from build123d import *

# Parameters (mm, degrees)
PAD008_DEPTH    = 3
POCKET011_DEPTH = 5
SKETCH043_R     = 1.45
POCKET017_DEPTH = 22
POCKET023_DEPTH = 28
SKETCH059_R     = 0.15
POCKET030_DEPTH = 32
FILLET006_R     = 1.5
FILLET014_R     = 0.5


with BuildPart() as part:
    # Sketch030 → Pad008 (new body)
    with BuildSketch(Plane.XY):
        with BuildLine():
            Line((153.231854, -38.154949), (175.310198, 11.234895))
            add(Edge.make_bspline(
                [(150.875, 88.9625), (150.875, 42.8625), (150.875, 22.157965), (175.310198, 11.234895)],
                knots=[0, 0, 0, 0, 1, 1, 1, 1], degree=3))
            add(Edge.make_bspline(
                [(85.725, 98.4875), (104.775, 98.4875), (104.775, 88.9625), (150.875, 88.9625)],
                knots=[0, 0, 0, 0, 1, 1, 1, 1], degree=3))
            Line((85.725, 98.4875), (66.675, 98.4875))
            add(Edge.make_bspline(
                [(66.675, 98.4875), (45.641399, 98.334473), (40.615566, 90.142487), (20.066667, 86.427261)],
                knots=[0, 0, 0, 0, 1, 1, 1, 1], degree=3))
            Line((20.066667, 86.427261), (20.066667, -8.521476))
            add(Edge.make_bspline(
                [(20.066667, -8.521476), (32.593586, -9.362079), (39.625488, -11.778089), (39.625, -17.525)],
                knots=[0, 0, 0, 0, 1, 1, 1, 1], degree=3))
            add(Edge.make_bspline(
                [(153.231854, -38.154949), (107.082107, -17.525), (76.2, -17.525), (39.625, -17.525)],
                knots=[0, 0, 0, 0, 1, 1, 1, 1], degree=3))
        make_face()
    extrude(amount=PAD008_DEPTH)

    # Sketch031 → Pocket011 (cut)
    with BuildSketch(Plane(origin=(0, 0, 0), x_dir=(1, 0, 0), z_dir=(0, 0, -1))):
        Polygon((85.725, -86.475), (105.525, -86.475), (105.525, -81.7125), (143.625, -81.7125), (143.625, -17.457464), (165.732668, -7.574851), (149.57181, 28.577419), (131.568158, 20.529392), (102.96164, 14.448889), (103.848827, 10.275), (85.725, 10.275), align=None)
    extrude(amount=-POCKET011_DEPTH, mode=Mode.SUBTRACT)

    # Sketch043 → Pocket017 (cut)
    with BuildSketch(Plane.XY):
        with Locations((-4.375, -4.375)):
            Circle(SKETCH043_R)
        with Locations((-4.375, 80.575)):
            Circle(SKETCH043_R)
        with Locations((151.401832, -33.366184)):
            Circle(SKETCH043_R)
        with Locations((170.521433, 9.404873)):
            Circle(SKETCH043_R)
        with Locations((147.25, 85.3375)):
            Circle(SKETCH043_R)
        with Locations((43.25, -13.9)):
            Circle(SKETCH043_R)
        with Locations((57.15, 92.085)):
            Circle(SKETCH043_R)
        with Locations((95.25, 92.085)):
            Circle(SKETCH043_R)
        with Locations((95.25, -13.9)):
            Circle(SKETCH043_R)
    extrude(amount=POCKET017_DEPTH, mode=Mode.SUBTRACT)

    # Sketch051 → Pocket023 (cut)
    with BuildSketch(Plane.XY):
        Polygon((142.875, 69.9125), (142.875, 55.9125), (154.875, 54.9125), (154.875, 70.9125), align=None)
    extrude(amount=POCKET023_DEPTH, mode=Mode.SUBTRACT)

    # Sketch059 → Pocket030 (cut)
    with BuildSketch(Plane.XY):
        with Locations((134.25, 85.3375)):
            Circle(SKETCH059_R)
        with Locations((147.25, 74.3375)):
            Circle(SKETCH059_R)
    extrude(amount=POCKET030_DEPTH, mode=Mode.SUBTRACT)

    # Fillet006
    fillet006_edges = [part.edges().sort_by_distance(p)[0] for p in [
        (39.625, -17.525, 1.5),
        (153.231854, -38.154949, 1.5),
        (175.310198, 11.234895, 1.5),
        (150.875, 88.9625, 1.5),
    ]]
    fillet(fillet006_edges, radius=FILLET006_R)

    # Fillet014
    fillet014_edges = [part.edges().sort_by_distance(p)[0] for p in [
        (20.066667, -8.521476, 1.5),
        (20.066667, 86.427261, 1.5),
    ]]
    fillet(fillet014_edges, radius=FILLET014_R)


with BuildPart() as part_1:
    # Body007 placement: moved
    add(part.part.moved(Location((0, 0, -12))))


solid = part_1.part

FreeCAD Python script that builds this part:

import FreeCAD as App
import Part
import Sketcher

V = App.Vector
Q = App.Units.Quantity


def edges_at(feature, points):
    """Names of the edges that pass closest to the given points."""
    edges = feature.Shape.Edges
    near = lambda p: min(range(len(edges)), key=lambda i: edges[i].distToShape(Part.Vertex(*p))[0])
    return sorted({f"Edge{near(p) + 1}" for p in points})


def add_polygon(sketch, points):
    """Adds a closed chain of lines whose ends are joined by coincident constraints."""
    first, n = sketch.GeometryCount, len(points)
    for a, b in zip(points, points[1:] + points[:1]):
        sketch.addGeometry(Part.LineSegment(App.Vector(*a, 0), App.Vector(*b, 0)), False)
    for i in range(n):
        sketch.addConstraint(Sketcher.Constraint("Coincident", first + i, 2, first + (i + 1) % n, 1))

doc = App.newDocument("Part")
body = doc.addObject("PartDesign::Body", "Body")

# Sketch on XY plane
sketch1 = body.newObject("Sketcher::SketchObject", "Sketch")
sketch1.AttachmentSupport = (doc.getObject("XY_Plane"), [""])
sketch1.MapMode = "FlatFace"
sketch1.addGeometry([
    Part.LineSegment(V(153.231854, -38.154949, 0), V(175.310198, 11.234895, 0)),  # 0
    Part.BSplineCurve([V(150.875, 88.9625, 0), V(150.875, 42.8625, 0), V(150.875, 22.157965, 0), V(175.310198, 11.234895, 0)], [4, 4], [0, 1], False, 3, [1, 1, 1, 1], False),  # 1
    Part.BSplineCurve([V(85.725, 98.4875, 0), V(104.775, 98.4875, 0), V(104.775, 88.9625, 0), V(150.875, 88.9625, 0)], [4, 4], [0, 1], False, 3, [1, 1, 1, 1], False),  # 2
    Part.LineSegment(V(85.725, 98.4875, 0), V(66.675, 98.4875, 0)),  # 3
    Part.BSplineCurve([V(66.675, 98.4875, 0), V(45.641399, 98.334473, 0), V(40.615566, 90.142487, 0), V(20.066667, 86.427261, 0)], [4, 4], [0, 1], False, 3, [1, 1, 1, 1], False),  # 4
    Part.LineSegment(V(20.066667, 86.427261, 0), V(20.066667, -8.521476, 0)),  # 5
    Part.BSplineCurve([V(20.066667, -8.521476, 0), V(32.593586, -9.362079, 0), V(39.625488, -11.778089, 0), V(39.625, -17.525, 0)], [4, 4], [0, 1], False, 3, [1, 1, 1, 1], False),  # 6
    Part.BSplineCurve([V(153.231854, -38.154949, 0), V(107.082107, -17.525, 0), V(76.2, -17.525, 0), V(39.625, -17.525, 0)], [4, 4], [0, 1], False, 3, [1, 1, 1, 1], False),  # 7
], False)
sketch1.addConstraint([
    Sketcher.Constraint("Block", 1),
    Sketcher.Constraint("Block", 2),
    Sketcher.Constraint("Block", 4),
    Sketcher.Constraint("Block", 6),
    Sketcher.Constraint("Block", 7),
    Sketcher.Constraint("Coincident", 0, 2, 1, 2),
    Sketcher.Constraint("Coincident", 2, 1, 3, 1),
    Sketcher.Constraint("Coincident", 3, 2, 4, 1),
    Sketcher.Constraint("Coincident", 4, 2, 5, 1),
    Sketcher.Constraint("Coincident", 5, 2, 6, 1),
    Sketcher.Constraint("Coincident", 7, 1, 0, 1),
])
pad1 = body.newObject("PartDesign::Pad", "Pad")
pad1.Profile = sketch1
pad1.Length = 3

# Sketch on XY plane
sketch2 = body.newObject("Sketcher::SketchObject", "Sketch001")
sketch2.AttachmentSupport = (doc.getObject("XY_Plane"), [""])
sketch2.MapMode = "FlatFace"
add_polygon(sketch2, [(85.725, 86.475), (105.525, 86.475), (105.525, 81.7125), (143.625, 81.7125), (143.625, 17.457464), (165.732668, 7.574851), (149.57181, -28.577419), (131.568158, -20.529392), (102.96164, -14.448889), (103.848827, -10.275), (85.725, -10.275)])  # lines 0-10
sketch2.addConstraint([
    Sketcher.Constraint("Horizontal", 0),
    Sketcher.Constraint("Vertical", 1),
    Sketcher.Constraint("Horizontal", 2),
    Sketcher.Constraint("Vertical", 3),
    Sketcher.Constraint("Horizontal", 9),
    Sketcher.Constraint("Vertical", 10),
    Sketcher.Constraint("Perpendicular", 4, 5),
    Sketcher.Constraint("Perpendicular", 5, 6),
    Sketcher.Constraint("Perpendicular", 7, 8),
    Sketcher.Constraint("Angle", 7, Q("168 deg")),
    Sketcher.Constraint("DistanceX", 0, 1, 0, 2, 19.8),
    Sketcher.Constraint("DistanceX", 2, 1, 2, 2, 38.1),
    Sketcher.Constraint("Distance", 5, 39.599999),
    Sketcher.Constraint("DistanceY", 10, 1, 10, 2, 96.75),
    Sketcher.Constraint("DistanceY", 1, 2, 1, 1, 4.7625),
    Sketcher.Constraint("DistanceX", -1, 1, 0, 2, 105.525),
    Sketcher.Constraint("DistanceY", -1, 1, 0, 2, 86.475),
    Sketcher.Constraint("DistanceX", 9, 2, 9, 1, 18.123827),
    Sketcher.Constraint("DistanceY", 3, 2, 3, 1, 64.255036),
    Sketcher.Constraint("DistanceY", -1, 1, 4, 2, 7.574851),
    Sketcher.Constraint("DistanceX", -1, 1, 5, 2, 149.57181),
    Sketcher.Constraint("DistanceX", -1, 1, 6, 2, 131.568158),
])
pocket1 = body.newObject("PartDesign::Pocket", "Pocket")
pocket1.Profile = sketch2
pocket1.Length = 5
pocket1.Reversed = True

# Sketch on XY plane
sketch3 = body.newObject("Sketcher::SketchObject", "Sketch002")
sketch3.AttachmentSupport = (doc.getObject("XY_Plane"), [""])
sketch3.MapMode = "FlatFace"
sketch3.addGeometry([
    Part.Circle(V(-4.375, -4.375, 0), V(0, 0, 1), 1.45),  # 0
    Part.Circle(V(-4.375, 80.575, 0), V(0, 0, 1), 1.45),  # 1
    Part.Circle(V(151.401832, -33.366184, 0), V(0, 0, 1), 1.45),  # 2
    Part.Circle(V(170.521433, 9.404873, 0), V(0, 0, 1), 1.45),  # 3
    Part.Circle(V(147.25, 85.3375, 0), V(0, 0, 1), 1.45),  # 4
    Part.Circle(V(43.25, -13.9, 0), V(0, 0, 1), 1.45),  # 5
    Part.Circle(V(57.15, 92.085, 0), V(0, 0, 1), 1.45),  # 6
    Part.Circle(V(95.25, 92.085, 0), V(0, 0, 1), 1.45),  # 7
    Part.Circle(V(95.25, -13.9, 0), V(0, 0, 1), 1.45),  # 8
], False)
sketch3.addConstraint([
    Sketcher.Constraint("Equal", 0, 1),
    Sketcher.Constraint("Equal", 1, 2),
    Sketcher.Constraint("Equal", 2, 3),
    Sketcher.Constraint("Equal", 3, 4),
    Sketcher.Constraint("Equal", 4, 5),
    Sketcher.Constraint("Equal", 5, 6),
    Sketcher.Constraint("Equal", 6, 7),
    Sketcher.Constraint("Equal", 7, 8),
    Sketcher.Constraint("Horizontal", 6, 3, 7, 3),
    Sketcher.Constraint("Horizontal", 5, 3, 8, 3),
    Sketcher.Constraint("Vertical", 0, 3, 1, 3),
    Sketcher.Constraint("Vertical", 7, 3, 8, 3),
    Sketcher.Constraint("Diameter", 0, 2.9),
    Sketcher.Constraint("DistanceX", 5, 3, 4, 3, 104.0),
    Sketcher.Constraint("DistanceX", 7, 3, 4, 3, 52.0),
    Sketcher.Constraint("DistanceY", 5, 3, -1, 1, 13.9),
    Sketcher.Constraint("DistanceX", 6, 3, 4, 3, 90.1),
    Sketcher.Constraint("DistanceX", -1, 1, 4, 3, 147.25),
    Sketcher.Constraint("DistanceY", 0, 3, 1, 3, 84.95),
    Sketcher.Constraint("DistanceY", 1, 3, 6, 3, 11.51),
    Sketcher.Constraint("DistanceX", 0, 3, -1, 1, 4.375),
    Sketcher.Constraint("DistanceY", 0, 3, -1, 1, 4.375),
    Sketcher.Constraint("DistanceY", -1, 1, 4, 3, 85.3375),
    Sketcher.Constraint("DistanceX", 2, 3, 3, 3, 19.119601),
    Sketcher.Constraint("DistanceX", -1, 1, 2, 3, 151.401832),
    Sketcher.Constraint("DistanceY", 2, 3, -1, 1, 33.366184),
    Sketcher.Constraint("DistanceY", -1, 1, 3, 3, 9.404873),
])
pocket2 = body.newObject("PartDesign::Pocket", "Pocket001")
pocket2.Profile = sketch3
pocket2.Length = 22
pocket2.Reversed = True

# Sketch on XY plane
sketch4 = body.newObject("Sketcher::SketchObject", "Sketch003")
sketch4.AttachmentSupport = (doc.getObject("XY_Plane"), [""])
sketch4.MapMode = "FlatFace"
add_polygon(sketch4, [(142.875, 69.9125), (142.875, 55.9125), (154.875, 54.9125), (154.875, 70.9125)])  # lines 0-3
sketch4.addConstraint([
    Sketcher.Constraint("Vertical", 0),
    Sketcher.Constraint("Vertical", 2),
    Sketcher.Constraint("Equal", 1, 3),
    Sketcher.Constraint("DistanceY", 0, 2, 0, 1, 14.0),
    Sketcher.Constraint("DistanceY", 2, 1, 2, 2, 16.0),
    Sketcher.Constraint("DistanceX", 0, 2, 1, 2, 12.0),
    Sketcher.Constraint("DistanceX", -1, 1, 0, 2, 142.875),
    Sketcher.Constraint("DistanceY", -1, 1, 0, 2, 55.9125),
])
pocket3 = body.newObject("PartDesign::Pocket", "Pocket002")
pocket3.Profile = sketch4
pocket3.Length = 28
pocket3.Reversed = True

# Sketch on XY plane
sketch5 = body.newObject("Sketcher::SketchObject", "Sketch004")
sketch5.AttachmentSupport = (doc.getObject("XY_Plane"), [""])
sketch5.MapMode = "FlatFace"
sketch5.addGeometry([
    Part.Circle(V(134.25, 85.3375, 0), V(0, 0, 1), 0.15),
    Part.Circle(V(147.25, 74.3375, 0), V(0, 0, 1), 0.15),
], False)
sketch5.addConstraint([
    Sketcher.Constraint("Equal", 0, 1),
    Sketcher.Constraint("Diameter", 0, 0.3),
    Sketcher.Constraint("DistanceX", 0, 3, 1, 3, 13.0),
    Sketcher.Constraint("DistanceY", 1, 3, 0, 3, 11.0),
    Sketcher.Constraint("DistanceX", -1, 1, 0, 3, 134.25),
    Sketcher.Constraint("DistanceY", -1, 1, 0, 3, 85.3375),
])
pocket4 = body.newObject("PartDesign::Pocket", "Pocket003")
pocket4.Profile = sketch5
pocket4.Length = 32
pocket4.Reversed = True
doc.recompute()

fillet = body.newObject("PartDesign::Fillet", "Fillet")
fillet.Base = (pocket4, edges_at(pocket4, [
    (39.625, -17.525, 1.5),
    (153.232, -38.155, 1.5),
    (175.31, 11.235, 1.5),
    (150.875, 88.963, 1.5),
]))
fillet.Radius = 1.5
doc.recompute()

fillet2 = body.newObject("PartDesign::Fillet", "Fillet001")
fillet2.Base = (fillet, edges_at(fillet, [(20.067, -8.521, 1.5), (20.067, 86.427, 1.5)]))
fillet2.Radius = 0.5
body2 = doc.addObject("PartDesign::Body", "Body001")
doc.recompute()

body.Placement = App.Placement(V(0, 0, -12), App.Rotation(V(0, 0, 1), 0))
boolean = body2.newObject("PartDesign::Boolean", "Boolean")
boolean.Type = "Fuse"
boolean.addObjects([body])

doc.recompute()
